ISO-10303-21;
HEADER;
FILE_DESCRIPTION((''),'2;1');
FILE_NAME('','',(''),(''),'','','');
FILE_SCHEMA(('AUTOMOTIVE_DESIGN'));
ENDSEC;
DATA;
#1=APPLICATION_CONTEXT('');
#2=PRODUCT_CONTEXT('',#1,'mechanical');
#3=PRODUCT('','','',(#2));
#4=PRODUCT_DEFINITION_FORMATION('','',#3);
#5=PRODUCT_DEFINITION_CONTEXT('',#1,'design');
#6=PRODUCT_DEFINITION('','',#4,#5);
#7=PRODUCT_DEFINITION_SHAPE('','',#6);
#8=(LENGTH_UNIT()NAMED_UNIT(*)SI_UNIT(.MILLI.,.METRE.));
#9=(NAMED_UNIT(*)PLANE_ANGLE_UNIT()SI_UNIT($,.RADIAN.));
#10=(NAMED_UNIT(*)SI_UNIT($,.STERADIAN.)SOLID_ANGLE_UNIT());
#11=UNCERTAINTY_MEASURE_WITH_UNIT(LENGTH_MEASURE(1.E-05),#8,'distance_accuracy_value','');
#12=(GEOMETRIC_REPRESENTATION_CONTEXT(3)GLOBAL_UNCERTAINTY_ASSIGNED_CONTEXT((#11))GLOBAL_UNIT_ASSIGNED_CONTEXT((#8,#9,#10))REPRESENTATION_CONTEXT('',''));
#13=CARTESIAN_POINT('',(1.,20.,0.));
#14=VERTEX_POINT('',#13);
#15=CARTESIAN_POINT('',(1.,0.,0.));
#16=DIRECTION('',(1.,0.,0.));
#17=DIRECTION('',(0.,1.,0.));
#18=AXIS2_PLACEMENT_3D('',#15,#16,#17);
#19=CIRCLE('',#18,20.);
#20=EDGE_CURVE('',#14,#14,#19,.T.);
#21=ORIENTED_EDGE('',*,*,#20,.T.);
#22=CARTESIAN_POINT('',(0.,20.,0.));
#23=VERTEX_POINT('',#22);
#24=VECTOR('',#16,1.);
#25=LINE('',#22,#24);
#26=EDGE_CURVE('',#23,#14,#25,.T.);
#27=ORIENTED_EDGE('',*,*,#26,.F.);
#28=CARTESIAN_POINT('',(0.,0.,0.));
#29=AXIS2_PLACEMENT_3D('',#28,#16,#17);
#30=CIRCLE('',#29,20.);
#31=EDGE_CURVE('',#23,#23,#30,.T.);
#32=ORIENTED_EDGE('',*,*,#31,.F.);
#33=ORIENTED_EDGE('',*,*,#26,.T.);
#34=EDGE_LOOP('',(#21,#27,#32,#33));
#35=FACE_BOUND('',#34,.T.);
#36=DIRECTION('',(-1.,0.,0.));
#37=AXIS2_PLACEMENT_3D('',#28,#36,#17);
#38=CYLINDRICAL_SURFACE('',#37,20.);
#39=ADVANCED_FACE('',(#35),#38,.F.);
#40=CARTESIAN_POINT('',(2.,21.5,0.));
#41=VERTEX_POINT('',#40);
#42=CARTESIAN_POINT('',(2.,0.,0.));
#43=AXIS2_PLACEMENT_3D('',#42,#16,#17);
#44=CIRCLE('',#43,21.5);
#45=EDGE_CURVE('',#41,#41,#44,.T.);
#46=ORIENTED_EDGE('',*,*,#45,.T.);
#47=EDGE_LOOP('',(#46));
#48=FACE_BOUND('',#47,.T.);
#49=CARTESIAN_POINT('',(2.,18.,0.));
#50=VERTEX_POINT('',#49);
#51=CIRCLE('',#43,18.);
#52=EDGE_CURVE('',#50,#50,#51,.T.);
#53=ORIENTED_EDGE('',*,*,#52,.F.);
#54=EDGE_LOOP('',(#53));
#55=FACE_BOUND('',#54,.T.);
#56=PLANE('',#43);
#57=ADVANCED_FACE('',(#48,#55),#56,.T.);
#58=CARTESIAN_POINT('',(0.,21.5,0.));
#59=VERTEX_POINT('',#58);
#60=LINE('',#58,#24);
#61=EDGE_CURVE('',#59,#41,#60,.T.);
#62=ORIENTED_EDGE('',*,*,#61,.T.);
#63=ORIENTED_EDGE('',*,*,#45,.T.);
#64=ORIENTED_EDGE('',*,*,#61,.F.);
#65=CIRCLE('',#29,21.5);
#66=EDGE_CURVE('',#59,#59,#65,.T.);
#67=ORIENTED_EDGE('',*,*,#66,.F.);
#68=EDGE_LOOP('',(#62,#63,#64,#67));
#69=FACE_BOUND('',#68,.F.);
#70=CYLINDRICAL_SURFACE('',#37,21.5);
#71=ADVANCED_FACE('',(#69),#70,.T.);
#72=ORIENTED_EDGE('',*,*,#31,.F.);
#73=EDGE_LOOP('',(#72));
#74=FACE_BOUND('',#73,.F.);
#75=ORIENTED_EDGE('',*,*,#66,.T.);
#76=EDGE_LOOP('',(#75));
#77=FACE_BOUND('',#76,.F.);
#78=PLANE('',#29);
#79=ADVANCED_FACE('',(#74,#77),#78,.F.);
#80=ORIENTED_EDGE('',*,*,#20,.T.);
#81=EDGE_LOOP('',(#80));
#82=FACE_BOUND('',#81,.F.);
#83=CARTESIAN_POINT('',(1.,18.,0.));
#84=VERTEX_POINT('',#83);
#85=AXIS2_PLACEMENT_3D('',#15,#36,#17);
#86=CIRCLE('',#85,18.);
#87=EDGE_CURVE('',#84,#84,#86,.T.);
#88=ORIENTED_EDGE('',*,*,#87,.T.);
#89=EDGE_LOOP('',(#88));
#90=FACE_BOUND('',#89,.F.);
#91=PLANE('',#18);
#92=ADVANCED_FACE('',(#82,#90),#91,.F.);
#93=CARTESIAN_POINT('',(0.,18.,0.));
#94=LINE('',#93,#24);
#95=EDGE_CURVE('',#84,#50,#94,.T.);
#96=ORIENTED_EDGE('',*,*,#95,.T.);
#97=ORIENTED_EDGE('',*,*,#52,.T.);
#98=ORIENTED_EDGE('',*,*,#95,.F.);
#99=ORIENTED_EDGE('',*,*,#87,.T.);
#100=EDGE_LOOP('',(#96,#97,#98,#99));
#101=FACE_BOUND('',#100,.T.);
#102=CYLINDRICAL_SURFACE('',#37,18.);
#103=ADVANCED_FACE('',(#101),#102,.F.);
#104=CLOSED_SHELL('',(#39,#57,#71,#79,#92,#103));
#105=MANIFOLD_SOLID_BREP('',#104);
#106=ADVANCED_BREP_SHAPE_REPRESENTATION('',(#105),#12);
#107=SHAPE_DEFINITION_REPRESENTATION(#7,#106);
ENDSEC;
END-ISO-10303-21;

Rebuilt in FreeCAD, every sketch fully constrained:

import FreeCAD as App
import Part
import Sketcher
from FreeCAD import Vector

doc = App.newDocument("Part")
params = doc.addObject("Spreadsheet::Sheet", "Params")
for row, (alias, value) in enumerate([
    ("sketch1_diameter", "43 mm"),
    ("sketch1_diameter2", "36 mm"),
    ("pad1_length", "2 mm"),
    ("sketch2_diameter", "40 mm"),
    ("pocket1_length", "1 mm"),
], start=1):
    params.set(f"A{row}", alias)
    params.set(f"B{row}", "=" + value)
    params.setAlias(f"B{row}", alias)

body = doc.addObject("PartDesign::Body", "Body")

sketch1 = body.newObject("Sketcher::SketchObject", "Sketch")
sketch1.AttachmentSupport = (doc.getObject("YZ_Plane"), [""])
sketch1.MapMode = "FlatFace"
sketch1.addGeometry(Part.Circle(Vector(0, 0, 0), Vector(0, 0, 1), 22), False)
sketch1.addGeometry(Part.Circle(Vector(0, 0, 0), Vector(0, 0, 1), 18), False)
sketch1.addConstraint(Sketcher.Constraint("Coincident", 0, 3, -1, 1))
sketch1.addConstraint(Sketcher.Constraint("Coincident", 1, 3, -1, 1))
sketch1.addConstraint(Sketcher.Constraint("Diameter", 0, 43.0))
sketch1.addConstraint(Sketcher.Constraint("Diameter", 1, 36.0))
sketch1.setExpression("Constraints[2]", "Params.sketch1_diameter")
sketch1.setExpression("Constraints[3]", "Params.sketch1_diameter2")
pad1 = body.newObject("PartDesign::Pad", "Pad")
pad1.Profile = sketch1
pad1.setExpression("Length", "Params.pad1_length")

sketch2 = body.newObject("Sketcher::SketchObject", "Sketch001")
sketch2.AttachmentSupport = (doc.getObject("YZ_Plane"), [""])
sketch2.MapMode = "FlatFace"
sketch2.addGeometry(Part.Circle(Vector(0, 0, 0), Vector(0, 0, 1), 20), False)
sketch2.addGeometry(Part.Circle(Vector(0, 0, 0), Vector(0, 0, 1), 16), False)
sketch2.addConstraint(Sketcher.Constraint("Coincident", 0, 3, -1, 1))
sketch2.addConstraint(Sketcher.Constraint("Coincident", 1, 3, -1, 1))
sketch2.addConstraint(Sketcher.Constraint("Diameter", 0, 40.0))
sketch2.addConstraint(Sketcher.Constraint("Diameter", 1, 31.415984))
sketch2.setExpression("Constraints[2]", "Params.sketch2_diameter")
pocket1 = body.newObject("PartDesign::Pocket", "Pocket")
pocket1.Profile = sketch2
pocket1.setExpression("Length", "Params.pocket1_length")
pocket1.Reversed = True

doc.recompute()
